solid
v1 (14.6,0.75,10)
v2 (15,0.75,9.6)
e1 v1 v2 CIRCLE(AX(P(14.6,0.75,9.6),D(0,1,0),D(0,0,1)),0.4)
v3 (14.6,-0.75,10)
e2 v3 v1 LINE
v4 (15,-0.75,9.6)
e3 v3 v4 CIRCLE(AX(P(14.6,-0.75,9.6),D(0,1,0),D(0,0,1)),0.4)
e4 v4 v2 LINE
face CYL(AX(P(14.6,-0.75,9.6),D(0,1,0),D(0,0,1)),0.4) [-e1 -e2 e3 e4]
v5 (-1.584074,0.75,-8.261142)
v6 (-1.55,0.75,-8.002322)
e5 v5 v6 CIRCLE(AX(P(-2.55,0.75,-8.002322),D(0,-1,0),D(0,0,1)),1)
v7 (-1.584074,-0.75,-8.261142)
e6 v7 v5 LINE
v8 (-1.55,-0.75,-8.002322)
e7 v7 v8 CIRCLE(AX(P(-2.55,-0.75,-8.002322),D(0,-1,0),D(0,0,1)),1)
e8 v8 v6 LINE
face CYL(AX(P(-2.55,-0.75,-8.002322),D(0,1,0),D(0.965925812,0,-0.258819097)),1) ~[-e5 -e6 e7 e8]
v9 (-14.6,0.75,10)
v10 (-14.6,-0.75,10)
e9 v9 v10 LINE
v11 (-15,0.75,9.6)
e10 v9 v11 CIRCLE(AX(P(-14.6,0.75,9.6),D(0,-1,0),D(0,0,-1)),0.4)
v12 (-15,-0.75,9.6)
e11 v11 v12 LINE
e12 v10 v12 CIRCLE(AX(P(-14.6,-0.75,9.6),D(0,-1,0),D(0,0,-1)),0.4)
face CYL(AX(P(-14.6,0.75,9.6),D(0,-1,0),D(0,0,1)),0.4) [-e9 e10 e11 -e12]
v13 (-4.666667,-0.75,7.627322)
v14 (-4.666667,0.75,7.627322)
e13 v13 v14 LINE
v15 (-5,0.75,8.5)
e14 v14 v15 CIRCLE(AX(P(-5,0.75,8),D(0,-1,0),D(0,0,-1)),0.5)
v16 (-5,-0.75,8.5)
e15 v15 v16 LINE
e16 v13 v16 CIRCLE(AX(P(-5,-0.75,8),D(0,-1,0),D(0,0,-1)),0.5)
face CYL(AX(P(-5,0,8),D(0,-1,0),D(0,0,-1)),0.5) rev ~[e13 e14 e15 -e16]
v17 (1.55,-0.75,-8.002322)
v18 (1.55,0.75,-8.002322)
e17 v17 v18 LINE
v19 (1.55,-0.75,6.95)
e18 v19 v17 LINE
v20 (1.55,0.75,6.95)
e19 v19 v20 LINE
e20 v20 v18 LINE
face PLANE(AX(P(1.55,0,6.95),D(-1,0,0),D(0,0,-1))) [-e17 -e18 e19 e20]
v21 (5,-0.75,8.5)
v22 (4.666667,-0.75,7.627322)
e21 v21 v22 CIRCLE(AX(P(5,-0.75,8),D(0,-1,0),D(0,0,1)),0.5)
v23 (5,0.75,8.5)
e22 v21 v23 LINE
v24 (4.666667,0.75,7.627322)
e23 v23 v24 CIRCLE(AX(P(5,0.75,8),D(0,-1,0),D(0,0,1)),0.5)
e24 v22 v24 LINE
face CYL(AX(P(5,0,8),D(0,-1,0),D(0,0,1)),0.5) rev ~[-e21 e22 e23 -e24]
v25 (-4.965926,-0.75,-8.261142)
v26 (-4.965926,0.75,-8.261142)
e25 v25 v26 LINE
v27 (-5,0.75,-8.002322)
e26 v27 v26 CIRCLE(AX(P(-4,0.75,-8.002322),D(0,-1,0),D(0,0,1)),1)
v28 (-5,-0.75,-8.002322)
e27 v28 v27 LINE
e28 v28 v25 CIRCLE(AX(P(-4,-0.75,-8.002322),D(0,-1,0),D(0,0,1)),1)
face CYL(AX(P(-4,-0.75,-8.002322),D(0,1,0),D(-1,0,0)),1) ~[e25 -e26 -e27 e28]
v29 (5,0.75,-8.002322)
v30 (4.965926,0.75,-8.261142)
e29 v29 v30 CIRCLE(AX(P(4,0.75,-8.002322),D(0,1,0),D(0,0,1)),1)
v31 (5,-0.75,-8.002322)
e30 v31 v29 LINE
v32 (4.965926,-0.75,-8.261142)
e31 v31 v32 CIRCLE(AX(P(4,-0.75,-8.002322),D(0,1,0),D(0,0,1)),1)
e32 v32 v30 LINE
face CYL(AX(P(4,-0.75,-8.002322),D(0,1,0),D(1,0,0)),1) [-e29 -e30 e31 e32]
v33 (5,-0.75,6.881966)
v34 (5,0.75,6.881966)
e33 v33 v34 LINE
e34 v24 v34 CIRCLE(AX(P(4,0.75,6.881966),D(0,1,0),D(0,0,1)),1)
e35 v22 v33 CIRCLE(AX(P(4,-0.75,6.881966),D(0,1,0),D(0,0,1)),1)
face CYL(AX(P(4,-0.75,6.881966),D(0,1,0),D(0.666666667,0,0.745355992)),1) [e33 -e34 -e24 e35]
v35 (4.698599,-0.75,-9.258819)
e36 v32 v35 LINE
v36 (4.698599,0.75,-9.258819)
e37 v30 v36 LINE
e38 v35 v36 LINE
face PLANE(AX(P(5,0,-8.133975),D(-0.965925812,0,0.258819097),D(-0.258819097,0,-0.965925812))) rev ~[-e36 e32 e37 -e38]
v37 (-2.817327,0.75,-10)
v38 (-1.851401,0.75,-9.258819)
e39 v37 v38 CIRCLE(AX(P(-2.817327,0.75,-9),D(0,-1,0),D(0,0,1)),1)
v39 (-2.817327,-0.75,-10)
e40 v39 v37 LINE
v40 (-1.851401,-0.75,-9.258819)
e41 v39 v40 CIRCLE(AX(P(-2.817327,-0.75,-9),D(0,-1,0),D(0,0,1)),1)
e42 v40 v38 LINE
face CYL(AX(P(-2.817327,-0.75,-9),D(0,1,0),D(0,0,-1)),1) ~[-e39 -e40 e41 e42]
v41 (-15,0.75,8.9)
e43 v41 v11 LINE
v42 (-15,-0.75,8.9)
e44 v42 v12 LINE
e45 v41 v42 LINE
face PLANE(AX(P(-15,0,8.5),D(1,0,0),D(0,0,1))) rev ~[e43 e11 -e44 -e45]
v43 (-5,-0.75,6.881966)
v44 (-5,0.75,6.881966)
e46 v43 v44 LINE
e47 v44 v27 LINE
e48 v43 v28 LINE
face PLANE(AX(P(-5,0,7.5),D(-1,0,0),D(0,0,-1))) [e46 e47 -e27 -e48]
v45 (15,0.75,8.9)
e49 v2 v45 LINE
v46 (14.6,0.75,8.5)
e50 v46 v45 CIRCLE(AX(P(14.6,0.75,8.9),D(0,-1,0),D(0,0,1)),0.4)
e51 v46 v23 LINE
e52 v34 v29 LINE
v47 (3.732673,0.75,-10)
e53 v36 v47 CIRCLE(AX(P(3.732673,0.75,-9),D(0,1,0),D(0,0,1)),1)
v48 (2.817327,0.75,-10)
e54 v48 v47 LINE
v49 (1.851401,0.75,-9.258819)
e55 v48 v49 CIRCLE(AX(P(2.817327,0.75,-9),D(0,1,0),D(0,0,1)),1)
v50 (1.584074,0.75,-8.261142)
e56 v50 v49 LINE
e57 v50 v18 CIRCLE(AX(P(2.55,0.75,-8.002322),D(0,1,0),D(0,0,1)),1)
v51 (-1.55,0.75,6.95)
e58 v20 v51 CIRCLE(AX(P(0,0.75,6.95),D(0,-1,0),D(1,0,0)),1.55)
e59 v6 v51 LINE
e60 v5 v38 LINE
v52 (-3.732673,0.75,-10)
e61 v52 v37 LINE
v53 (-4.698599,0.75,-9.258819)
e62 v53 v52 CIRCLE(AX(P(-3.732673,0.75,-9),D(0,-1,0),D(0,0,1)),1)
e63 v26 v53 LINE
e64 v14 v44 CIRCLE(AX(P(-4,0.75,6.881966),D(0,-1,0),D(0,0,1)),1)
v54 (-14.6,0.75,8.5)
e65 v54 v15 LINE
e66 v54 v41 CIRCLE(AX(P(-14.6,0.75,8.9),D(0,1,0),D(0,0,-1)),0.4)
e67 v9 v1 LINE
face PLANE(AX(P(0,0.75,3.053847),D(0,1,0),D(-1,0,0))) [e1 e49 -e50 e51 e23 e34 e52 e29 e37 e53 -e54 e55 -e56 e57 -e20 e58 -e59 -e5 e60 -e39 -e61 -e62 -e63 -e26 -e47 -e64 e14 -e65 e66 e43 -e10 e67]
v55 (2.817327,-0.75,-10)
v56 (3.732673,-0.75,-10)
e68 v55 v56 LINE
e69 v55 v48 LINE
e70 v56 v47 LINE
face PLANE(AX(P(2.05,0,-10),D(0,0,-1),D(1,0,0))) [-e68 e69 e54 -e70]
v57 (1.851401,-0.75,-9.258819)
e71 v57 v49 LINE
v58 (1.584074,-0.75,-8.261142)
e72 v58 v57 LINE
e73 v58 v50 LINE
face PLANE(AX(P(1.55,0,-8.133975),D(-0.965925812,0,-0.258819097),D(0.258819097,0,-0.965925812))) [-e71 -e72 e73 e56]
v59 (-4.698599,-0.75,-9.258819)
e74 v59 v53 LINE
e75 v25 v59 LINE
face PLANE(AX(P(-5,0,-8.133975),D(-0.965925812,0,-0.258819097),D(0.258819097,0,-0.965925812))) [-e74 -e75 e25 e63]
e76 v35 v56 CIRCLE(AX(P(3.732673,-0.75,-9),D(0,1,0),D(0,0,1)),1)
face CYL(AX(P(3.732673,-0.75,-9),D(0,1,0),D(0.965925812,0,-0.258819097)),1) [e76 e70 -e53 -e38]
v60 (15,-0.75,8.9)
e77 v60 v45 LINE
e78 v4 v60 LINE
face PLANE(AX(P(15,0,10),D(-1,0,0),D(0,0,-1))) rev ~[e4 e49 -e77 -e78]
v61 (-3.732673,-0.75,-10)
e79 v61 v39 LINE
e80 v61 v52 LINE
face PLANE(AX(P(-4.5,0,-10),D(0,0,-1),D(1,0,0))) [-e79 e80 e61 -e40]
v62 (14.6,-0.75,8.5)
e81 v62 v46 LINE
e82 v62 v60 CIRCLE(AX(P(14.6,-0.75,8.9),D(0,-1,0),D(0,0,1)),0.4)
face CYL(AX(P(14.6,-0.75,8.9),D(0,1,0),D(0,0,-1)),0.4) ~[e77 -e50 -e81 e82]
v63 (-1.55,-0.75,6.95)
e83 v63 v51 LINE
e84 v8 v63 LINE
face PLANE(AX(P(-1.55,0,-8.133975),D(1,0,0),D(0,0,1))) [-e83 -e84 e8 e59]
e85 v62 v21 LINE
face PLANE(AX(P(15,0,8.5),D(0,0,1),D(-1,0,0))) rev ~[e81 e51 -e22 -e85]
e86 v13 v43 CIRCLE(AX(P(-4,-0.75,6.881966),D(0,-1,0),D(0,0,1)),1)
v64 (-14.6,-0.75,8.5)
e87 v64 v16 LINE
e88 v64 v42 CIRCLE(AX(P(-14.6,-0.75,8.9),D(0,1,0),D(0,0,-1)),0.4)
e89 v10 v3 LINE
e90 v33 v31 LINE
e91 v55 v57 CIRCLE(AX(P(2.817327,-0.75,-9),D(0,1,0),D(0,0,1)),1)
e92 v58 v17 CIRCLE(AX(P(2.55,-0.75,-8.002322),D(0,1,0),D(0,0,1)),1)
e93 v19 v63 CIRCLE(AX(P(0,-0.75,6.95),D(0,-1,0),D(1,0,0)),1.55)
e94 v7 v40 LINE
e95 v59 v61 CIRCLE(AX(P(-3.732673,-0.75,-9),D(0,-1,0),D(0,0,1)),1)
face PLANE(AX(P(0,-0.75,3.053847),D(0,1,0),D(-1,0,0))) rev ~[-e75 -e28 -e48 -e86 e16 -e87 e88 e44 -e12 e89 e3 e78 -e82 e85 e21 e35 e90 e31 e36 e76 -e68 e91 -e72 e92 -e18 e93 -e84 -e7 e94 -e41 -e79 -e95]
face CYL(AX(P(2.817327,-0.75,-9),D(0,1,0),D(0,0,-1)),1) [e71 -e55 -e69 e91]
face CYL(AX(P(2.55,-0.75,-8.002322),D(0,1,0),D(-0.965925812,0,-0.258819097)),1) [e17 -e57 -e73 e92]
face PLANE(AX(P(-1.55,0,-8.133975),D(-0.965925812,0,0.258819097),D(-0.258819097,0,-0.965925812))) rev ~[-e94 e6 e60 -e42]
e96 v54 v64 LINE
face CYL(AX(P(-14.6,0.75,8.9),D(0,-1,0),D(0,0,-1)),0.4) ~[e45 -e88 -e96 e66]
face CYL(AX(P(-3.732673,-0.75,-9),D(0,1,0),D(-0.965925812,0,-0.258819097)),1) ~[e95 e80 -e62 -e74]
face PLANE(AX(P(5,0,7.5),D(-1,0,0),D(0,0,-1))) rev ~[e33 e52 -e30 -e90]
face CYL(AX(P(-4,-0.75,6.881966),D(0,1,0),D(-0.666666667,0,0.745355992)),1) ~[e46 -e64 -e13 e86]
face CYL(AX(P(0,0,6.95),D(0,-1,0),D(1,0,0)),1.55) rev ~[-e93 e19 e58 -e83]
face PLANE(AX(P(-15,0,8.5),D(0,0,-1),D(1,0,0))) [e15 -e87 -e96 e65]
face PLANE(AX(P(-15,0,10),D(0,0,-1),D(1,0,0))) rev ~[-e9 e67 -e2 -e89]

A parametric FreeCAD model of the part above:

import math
import FreeCAD as App
import Part
import Sketcher
Q = App.Units.Quantity


def edges_at(feature, points):
    """Names of the edges that pass closest to the given points."""
    edges = feature.Shape.Edges
    near = lambda p: min(range(len(edges)), key=lambda i: edges[i].distToShape(Part.Vertex(*p))[0])
    return sorted({f"Edge{near(p) + 1}" for p in points})

doc = App.newDocument("Part")
body = doc.addObject("PartDesign::Body", "Body")

# Sketch on XZ plane
sketch1 = body.newObject("Sketcher::SketchObject", "Sketch")
sketch1.AttachmentSupport = (doc.getObject("XZ_Plane"), [""])
sketch1.MapMode = "FlatFace"
sketch1.addGeometry(Part.LineSegment(App.Vector(15, 10, 0), App.Vector(-15, 10, 0)), False)
sketch1.addGeometry(Part.LineSegment(App.Vector(-15, 10, 0), App.Vector(-15, 8.5, 0)), False)
sketch1.addGeometry(Part.LineSegment(App.Vector(-15, 8.5, 0), App.Vector(-5, 8.5, 0)), False)
sketch1.addGeometry(Part.ArcOfCircle(Part.Circle(App.Vector(-5, 8, 0), App.Vector(0, 0, 1), 0.5), math.radians(-90), math.radians(90)), False)
sketch1.addGeometry(Part.LineSegment(App.Vector(-5, 7.5, 0), App.Vector(-5, -8.133975, 0)), False)
sketch1.addGeometry(Part.LineSegment(App.Vector(-5, -8.133975, 0), App.Vector(-4.5, -10, 0)), False)
sketch1.addGeometry(Part.LineSegment(App.Vector(-4.5, -10, 0), App.Vector(-2.05, -10, 0)), False)
sketch1.addGeometry(Part.LineSegment(App.Vector(-2.05, -10, 0), App.Vector(-1.55, -8.133975, 0)), False)
sketch1.addGeometry(Part.LineSegment(App.Vector(-1.55, -8.133975, 0), App.Vector(-1.55, 6.95, 0)), False)
sketch1.addGeometry(Part.ArcOfCircle(Part.Circle(App.Vector(0, 6.95, 0), App.Vector(0, 0, 1), 1.55), math.radians(0), math.radians(180)), False)
sketch1.addGeometry(Part.LineSegment(App.Vector(1.55, 6.95, 0), App.Vector(1.55, -8.133975, 0)), False)
sketch1.addGeometry(Part.LineSegment(App.Vector(1.55, -8.133975, 0), App.Vector(2.05, -10, 0)), False)
sketch1.addGeometry(Part.LineSegment(App.Vector(2.05, -10, 0), App.Vector(4.5, -10, 0)), False)
sketch1.addGeometry(Part.LineSegment(App.Vector(4.5, -10, 0), App.Vector(5, -8.133975, 0)), False)
sketch1.addGeometry(Part.LineSegment(App.Vector(5, -8.133975, 0), App.Vector(5, 7.5, 0)), False)
sketch1.addGeometry(Part.ArcOfCircle(Part.Circle(App.Vector(5, 8, 0), App.Vector(0, 0, 1), 0.5), math.radians(90), math.radians(270)), False)
sketch1.addGeometry(Part.LineSegment(App.Vector(5, 8.5, 0), App.Vector(15, 8.5, 0)), False)
sketch1.addGeometry(Part.LineSegment(App.Vector(15, 8.5, 0), App.Vector(15, 10, 0)), False)
sketch1.addConstraint(Sketcher.Constraint("Coincident", 0, 2, 1, 1))
sketch1.addConstraint(Sketcher.Constraint("Coincident", 1, 2, 2, 1))
sketch1.addConstraint(Sketcher.Constraint("Tangent", 2, 2, 3, 2))
sketch1.addConstraint(Sketcher.Constraint("Coincident", 3, 1, 4, 1))
sketch1.addConstraint(Sketcher.Constraint("Coincident", 4, 2, 5, 1))
sketch1.addConstraint(Sketcher.Constraint("Coincident", 5, 2, 6, 1))
sketch1.addConstraint(Sketcher.Constraint("Coincident", 6, 2, 7, 1))
sketch1.addConstraint(Sketcher.Constraint("Coincident", 7, 2, 8, 1))
sketch1.addConstraint(Sketcher.Constraint("Tangent", 8, 2, 9, 2))
sketch1.addConstraint(Sketcher.Constraint("Tangent", 9, 1, 10, 1))
sketch1.addConstraint(Sketcher.Constraint("Coincident", 10, 2, 11, 1))
sketch1.addConstraint(Sketcher.Constraint("Coincident", 11, 2, 12, 1))
sketch1.addConstraint(Sketcher.Constraint("Coincident", 12, 2, 13, 1))
sketch1.addConstraint(Sketcher.Constraint("Coincident", 13, 2, 14, 1))
sketch1.addConstraint(Sketcher.Constraint("Coincident", 14, 2, 15, 2))
sketch1.addConstraint(Sketcher.Constraint("Tangent", 15, 1, 16, 1))
sketch1.addConstraint(Sketcher.Constraint("Coincident", 16, 2, 17, 1))
sketch1.addConstraint(Sketcher.Constraint("Coincident", 17, 2, 0, 1))
sketch1.addConstraint(Sketcher.Constraint("Horizontal", 0))
sketch1.addConstraint(Sketcher.Constraint("Vertical", 1))
sketch1.addConstraint(Sketcher.Constraint("Horizontal", 2))
sketch1.addConstraint(Sketcher.Constraint("Vertical", 4))
sketch1.addConstraint(Sketcher.Constraint("Horizontal", 6))
sketch1.addConstraint(Sketcher.Constraint("Vertical", 8))
sketch1.addConstraint(Sketcher.Constraint("Vertical", 10))
sketch1.addConstraint(Sketcher.Constraint("Horizontal", 12))
sketch1.addConstraint(Sketcher.Constraint("Vertical", 14))
sketch1.addConstraint(Sketcher.Constraint("Horizontal", 16))
sketch1.addConstraint(Sketcher.Constraint("Vertical", 17))
sketch1.addConstraint(Sketcher.Constraint("Equal", 3, 15))
sketch1.addConstraint(Sketcher.Constraint("Symmetric", 3, 3, 15, 3, -2))
sketch1.addConstraint(Sketcher.Constraint("Symmetric", 7, 2, 10, 2, -2))
sketch1.addConstraint(Sketcher.Constraint("Symmetric", 6, 2, 11, 2, -2))
sketch1.addConstraint(Sketcher.Constraint("Symmetric", 4, 2, 13, 2, -2))
sketch1.addConstraint(Sketcher.Constraint("Parallel", 5, 11))
sketch1.addConstraint(Sketcher.Constraint("Parallel", 7, 13))
sketch1.addConstraint(Sketcher.Constraint("Horizontal", 4, 2, 7, 2))
sketch1.addConstraint(Sketcher.Constraint("Vertical", 2, 2, 3, 1))
sketch1.addConstraint(Sketcher.Constraint("Equal", 2, 16))
sketch1.addConstraint(Sketcher.Constraint("Radius", 3, Q("0.5 mm")))
sketch1.addConstraint(Sketcher.Constraint("DistanceX", 0, 2, 0, 1, Q("30 mm")))
sketch1.addConstraint(Sketcher.Constraint("DistanceX", 2, 1, 2, 2, Q("10 mm")))
sketch1.addConstraint(Sketcher.Constraint("Angle", 5, Q("-74.999997 deg")))
sketch1.addConstraint(Sketcher.Constraint("Radius", 9, Q("1.55 mm")))
sketch1.addConstraint(Sketcher.Constraint("DistanceY", 1, 2, 1, 1, Q("1.5 mm")))
sketch1.addConstraint(Sketcher.Constraint("DistanceY", -1, 1, 3, 3, Q("8 mm")))
sketch1.addConstraint(Sketcher.Constraint("DistanceY", 5, 2, -1, 1, Q("10 mm")))
sketch1.addConstraint(Sketcher.Constraint("DistanceX", 5, 2, 12, 2, Q("9 mm")))
sketch1.addConstraint(Sketcher.Constraint("DistanceY", -1, 1, 9, 3, Q("6.95 mm")))
pad1 = body.newObject("PartDesign::Pad", "Pad")
pad1.Profile = sketch1
pad1.Length = 1.5
pad1.Midplane = True
doc.recompute()

fillet = body.newObject("PartDesign::Fillet", "Fillet")
fillet.Base = (pad1, edges_at(pad1, [
    (-15, 0, 10),
    (-15, 0, 8.5),
    (15, 0, 10),
    (15, 0, 8.5),
]))
fillet.Radius = 0.4
doc.recompute()

fillet2 = body.newObject("PartDesign::Fillet", "Fillet001")
fillet2.Base = (fillet, edges_at(fillet, [
    (-5, 0, 7.5),
    (-5, 0, -8.134),
    (-4.5, 0, -10),
    (-2.05, 0, -10),
    (-1.55, 0, -8.134),
    (1.55, 0, -8.134),
    (2.05, 0, -10),
    (4.5, 0, -10),
    (5, 0, -8.134),
    (5, 0, 7.5),
]))
fillet2.Radius = 1

doc.recompute()
